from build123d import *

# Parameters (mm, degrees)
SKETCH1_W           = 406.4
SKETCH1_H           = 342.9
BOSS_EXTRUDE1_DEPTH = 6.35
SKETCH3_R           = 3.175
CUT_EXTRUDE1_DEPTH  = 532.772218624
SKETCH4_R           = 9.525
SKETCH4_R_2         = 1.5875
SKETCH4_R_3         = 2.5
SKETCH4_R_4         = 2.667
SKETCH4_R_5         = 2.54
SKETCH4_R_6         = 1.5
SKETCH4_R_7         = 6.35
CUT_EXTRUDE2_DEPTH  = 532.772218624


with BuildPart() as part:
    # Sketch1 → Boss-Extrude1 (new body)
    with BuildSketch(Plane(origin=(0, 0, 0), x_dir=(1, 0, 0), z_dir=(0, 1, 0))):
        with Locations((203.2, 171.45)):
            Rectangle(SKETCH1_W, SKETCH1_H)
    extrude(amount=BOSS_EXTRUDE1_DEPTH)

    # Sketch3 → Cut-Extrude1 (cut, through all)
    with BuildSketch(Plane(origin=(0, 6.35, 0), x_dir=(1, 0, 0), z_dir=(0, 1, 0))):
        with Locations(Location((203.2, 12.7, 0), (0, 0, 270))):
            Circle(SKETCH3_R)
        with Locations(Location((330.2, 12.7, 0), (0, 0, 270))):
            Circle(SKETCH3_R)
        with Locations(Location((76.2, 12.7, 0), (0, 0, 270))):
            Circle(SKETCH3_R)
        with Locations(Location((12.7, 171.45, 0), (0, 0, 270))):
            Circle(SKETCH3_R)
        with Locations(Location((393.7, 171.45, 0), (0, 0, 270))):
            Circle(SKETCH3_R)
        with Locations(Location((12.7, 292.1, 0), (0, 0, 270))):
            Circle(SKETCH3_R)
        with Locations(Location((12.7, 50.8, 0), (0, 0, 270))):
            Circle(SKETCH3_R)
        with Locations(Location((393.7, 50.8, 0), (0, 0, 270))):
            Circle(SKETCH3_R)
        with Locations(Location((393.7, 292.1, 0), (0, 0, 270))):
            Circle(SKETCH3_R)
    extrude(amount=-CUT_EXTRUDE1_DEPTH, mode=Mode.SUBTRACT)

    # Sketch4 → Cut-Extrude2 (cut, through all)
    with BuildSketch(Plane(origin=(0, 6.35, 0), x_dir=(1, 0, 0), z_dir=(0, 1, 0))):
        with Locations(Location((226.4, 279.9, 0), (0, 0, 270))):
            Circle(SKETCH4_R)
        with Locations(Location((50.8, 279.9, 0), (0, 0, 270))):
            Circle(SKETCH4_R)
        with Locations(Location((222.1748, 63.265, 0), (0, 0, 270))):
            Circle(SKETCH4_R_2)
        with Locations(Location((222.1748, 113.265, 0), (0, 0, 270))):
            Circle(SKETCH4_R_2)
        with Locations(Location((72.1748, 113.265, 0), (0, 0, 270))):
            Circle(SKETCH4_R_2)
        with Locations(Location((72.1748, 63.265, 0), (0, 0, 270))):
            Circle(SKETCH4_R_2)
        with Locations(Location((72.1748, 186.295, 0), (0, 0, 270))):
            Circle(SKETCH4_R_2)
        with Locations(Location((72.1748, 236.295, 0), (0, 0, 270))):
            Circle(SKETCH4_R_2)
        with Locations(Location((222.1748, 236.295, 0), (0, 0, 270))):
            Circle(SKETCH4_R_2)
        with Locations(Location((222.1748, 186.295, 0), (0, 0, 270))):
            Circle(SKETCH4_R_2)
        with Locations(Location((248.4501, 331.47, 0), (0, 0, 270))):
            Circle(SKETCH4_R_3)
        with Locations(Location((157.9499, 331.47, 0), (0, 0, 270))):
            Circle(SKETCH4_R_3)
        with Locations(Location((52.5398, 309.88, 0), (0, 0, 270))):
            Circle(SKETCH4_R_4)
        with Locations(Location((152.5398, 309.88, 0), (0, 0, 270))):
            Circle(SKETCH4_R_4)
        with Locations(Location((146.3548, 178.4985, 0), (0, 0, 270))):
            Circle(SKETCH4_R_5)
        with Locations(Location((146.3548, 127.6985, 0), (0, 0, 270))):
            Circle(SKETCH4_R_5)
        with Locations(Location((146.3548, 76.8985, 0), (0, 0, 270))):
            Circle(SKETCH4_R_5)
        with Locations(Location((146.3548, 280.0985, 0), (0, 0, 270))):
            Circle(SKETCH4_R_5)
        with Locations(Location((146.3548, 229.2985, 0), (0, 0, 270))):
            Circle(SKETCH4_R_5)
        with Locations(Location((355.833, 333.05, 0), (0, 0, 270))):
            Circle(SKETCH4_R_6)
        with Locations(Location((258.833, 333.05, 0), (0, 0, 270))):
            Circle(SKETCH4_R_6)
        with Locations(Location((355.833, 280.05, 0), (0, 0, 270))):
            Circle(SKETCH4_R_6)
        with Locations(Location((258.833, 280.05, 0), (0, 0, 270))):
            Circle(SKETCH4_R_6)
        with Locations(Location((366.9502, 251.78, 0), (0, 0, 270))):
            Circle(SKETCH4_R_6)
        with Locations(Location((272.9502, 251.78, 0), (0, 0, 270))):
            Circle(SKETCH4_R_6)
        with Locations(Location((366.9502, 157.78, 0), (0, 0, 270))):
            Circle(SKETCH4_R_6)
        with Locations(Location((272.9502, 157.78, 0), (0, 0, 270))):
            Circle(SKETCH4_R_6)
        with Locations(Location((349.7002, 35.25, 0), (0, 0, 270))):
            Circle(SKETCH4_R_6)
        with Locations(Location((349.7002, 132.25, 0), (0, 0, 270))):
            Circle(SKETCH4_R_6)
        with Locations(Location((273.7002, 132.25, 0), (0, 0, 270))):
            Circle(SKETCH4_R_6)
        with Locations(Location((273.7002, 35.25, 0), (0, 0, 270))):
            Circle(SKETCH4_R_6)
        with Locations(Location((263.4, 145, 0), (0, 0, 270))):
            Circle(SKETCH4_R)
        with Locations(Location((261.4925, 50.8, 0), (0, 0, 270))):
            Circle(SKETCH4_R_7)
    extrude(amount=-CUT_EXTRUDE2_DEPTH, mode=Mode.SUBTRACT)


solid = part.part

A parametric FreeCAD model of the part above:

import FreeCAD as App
import Part
import Sketcher
from FreeCAD import Vector
Q = App.Units.Quantity

doc = App.newDocument("Part")
body = doc.addObject("PartDesign::Body", "Body")

# Sketch on XZ plane
sketch1 = doc.addObject("Sketcher::SketchObject", "Sketch")
body.addObject(sketch1)
sketch1.AttachmentSupport = (doc.XZ_Plane, [""])
sketch1.MapMode = "FlatFace"
sketch1.addGeometry(Part.LineSegment(Vector(0, -343, 0), Vector(0, 0, 0)), False)
sketch1.addGeometry(Part.LineSegment(Vector(0, 0, 0), Vector(406, 0, 0)), False)
sketch1.addGeometry(Part.LineSegment(Vector(406, 0, 0), Vector(406, -343, 0)), False)
sketch1.addGeometry(Part.LineSegment(Vector(406, -343, 0), Vector(0, -343, 0)), False)
sketch1.addConstraint(Sketcher.Constraint("Coincident", 0, 2, 1, 1))
sketch1.addConstraint(Sketcher.Constraint("Coincident", 1, 2, 2, 1))
sketch1.addConstraint(Sketcher.Constraint("Coincident", 2, 2, 3, 1))
sketch1.addConstraint(Sketcher.Constraint("Coincident", 3, 2, 0, 1))
sketch1.addConstraint(Sketcher.Constraint("Vertical", 0))
sketch1.addConstraint(Sketcher.Constraint("Horizontal", 1))
sketch1.addConstraint(Sketcher.Constraint("Vertical", 2))
sketch1.addConstraint(Sketcher.Constraint("Horizontal", 3))
sketch1.addConstraint(Sketcher.Constraint("Coincident", 0, 2, -1, 1))
sketch1.addConstraint(Sketcher.Constraint("DistanceX", 1, 1, 1, 2, Q("16 in")))
sketch1.addConstraint(Sketcher.Constraint("DistanceY", 0, 1, 0, 2, Q("13.5 in")))
pad1 = doc.addObject("PartDesign::Pad", "Pad")
body.addObject(pad1)
pad1.Profile = sketch1
pad1.Length = Q("0.25 in")
pad1.Reversed = True

# Sketch on XZ plane
sketch2 = doc.addObject("Sketcher::SketchObject", "Sketch001")
body.addObject(sketch2)
sketch2.AttachmentSupport = (doc.XZ_Plane, [""])
sketch2.MapMode = "FlatFace"
sketch2.AttachmentOffset = App.Placement(Vector(0, 0, -0.25 * 25.4), App.Rotation())
sketch2.addGeometry(Part.Circle(Vector(203.2, -12.7, 0), Vector(0, 0, 1), 3.2), False)
sketch2.addGeometry(Part.Circle(Vector(330.2, -12.7, 0), Vector(0, 0, 1), 3.2), False)
sketch2.addGeometry(Part.Circle(Vector(76.2, -12.7, 0), Vector(0, 0, 1), 3.2), False)
sketch2.addGeometry(Part.Circle(Vector(12.7, -171.4, 0), Vector(0, 0, 1), 3.2), False)
sketch2.addGeometry(Part.Circle(Vector(393.7, -171.4, 0), Vector(0, 0, 1), 3.2), False)
sketch2.addGeometry(Part.Circle(Vector(12.7, -292.1, 0), Vector(0, 0, 1), 3.2), False)
sketch2.addGeometry(Part.Circle(Vector(12.7, -50.8, 0), Vector(0, 0, 1), 3.2), False)
sketch2.addGeometry(Part.Circle(Vector(393.7, -50.8, 0), Vector(0, 0, 1), 3.2), False)
sketch2.addGeometry(Part.Circle(Vector(393.7, -292.1, 0), Vector(0, 0, 1), 3.2), False)
sketch2.addConstraint(Sketcher.Constraint("Equal", 0, 1))
sketch2.addConstraint(Sketcher.Constraint("Equal", 1, 2))
sketch2.addConstraint(Sketcher.Constraint("Equal", 2, 3))
sketch2.addConstraint(Sketcher.Constraint("Equal", 3, 4))
sketch2.addConstraint(Sketcher.Constraint("Equal", 4, 5))
sketch2.addConstraint(Sketcher.Constraint("Equal", 5, 6))
sketch2.addConstraint(Sketcher.Constraint("Equal", 6, 7))
sketch2.addConstraint(Sketcher.Constraint("Equal", 7, 8))
sketch2.addConstraint(Sketcher.Constraint("Horizontal", 0, 3, 1, 3))
sketch2.addConstraint(Sketcher.Constraint("Horizontal", 1, 3, 2, 3))
sketch2.addConstraint(Sketcher.Constraint("Horizontal", 3, 3, 4, 3))
sketch2.addConstraint(Sketcher.Constraint("Horizontal", 6, 3, 7, 3))
sketch2.addConstraint(Sketcher.Constraint("Horizontal", 5, 3, 8, 3))
sketch2.addConstraint(Sketcher.Constraint("Vertical", 3, 3, 5, 3))
sketch2.addConstraint(Sketcher.Constraint("Vertical", 5, 3, 6, 3))
sketch2.addConstraint(Sketcher.Constraint("Vertical", 4, 3, 7, 3))
sketch2.addConstraint(Sketcher.Constraint("Vertical", 7, 3, 8, 3))
sketch2.addConstraint(Sketcher.Constraint("Diameter", 0, Q("0.25 in")))
sketch2.addConstraint(Sketcher.Constraint("DistanceX", -1, 1, 0, 3, Q("8 in")))
sketch2.addConstraint(Sketcher.Constraint("DistanceX", -1, 1, 1, 3, Q("13 in")))
sketch2.addConstraint(Sketcher.Constraint("DistanceX", -1, 1, 2, 3, Q("3 in")))
sketch2.addConstraint(Sketcher.Constraint("DistanceY", 6, 3, -1, 1, Q("2 in")))
sketch2.addConstraint(Sketcher.Constraint("DistanceX", 3, 3, 4, 3, Q("15 in")))
sketch2.addConstraint(Sketcher.Constraint("DistanceY", 5, 3, 2, 3, Q("11 in")))
sketch2.addConstraint(Sketcher.Constraint("DistanceY", 0, 3, -1, 1, Q("0.5 in")))
sketch2.addConstraint(Sketcher.Constraint("DistanceX", -1, 1, 3, 3, Q("0.5 in")))
sketch2.addConstraint(Sketcher.Constraint("DistanceY", 3, 3, -1, 1, Q("6.75 in")))
pocket1 = doc.addObject("PartDesign::Pocket", "Pocket")
body.addObject(pocket1)
pocket1.Profile = sketch2
pocket1.Type = "ThroughAll"
pocket1.Reversed = True

# Sketch on XZ plane
sketch3 = doc.addObject("Sketcher::SketchObject", "Sketch002")
body.addObject(sketch3)
sketch3.AttachmentSupport = (doc.XZ_Plane, [""])
sketch3.MapMode = "FlatFace"
sketch3.AttachmentOffset = App.Placement(Vector(0, 0, -0.25 * 25.4), App.Rotation())
sketch3.addGeometry(Part.Circle(Vector(226.4, -279.9, 0), Vector(0, 0, 1), 9.5), False)
sketch3.addGeometry(Part.Circle(Vector(50.8, -279.9, 0), Vector(0, 0, 1), 9.5), False)
sketch3.addGeometry(Part.Circle(Vector(222.2, -63.3, 0), Vector(0, 0, 1), 1.6), False)
sketch3.addGeometry(Part.Circle(Vector(222.2, -113.3, 0), Vector(0, 0, 1), 1.6), False)
sketch3.addGeometry(Part.Circle(Vector(72.2, -113.3, 0), Vector(0, 0, 1), 1.6), False)
sketch3.addGeometry(Part.Circle(Vector(72.2, -63.3, 0), Vector(0, 0, 1), 1.6), False)
sketch3.addGeometry(Part.Circle(Vector(72.2, -186.3, 0), Vector(0, 0, 1), 1.6), False)
sketch3.addGeometry(Part.Circle(Vector(72.2, -236.3, 0), Vector(0, 0, 1), 1.6), False)
sketch3.addGeometry(Part.Circle(Vector(222.2, -236.3, 0), Vector(0, 0, 1), 1.6), False)
sketch3.addGeometry(Part.Circle(Vector(222.2, -186.3, 0), Vector(0, 0, 1), 1.6), False)
sketch3.addGeometry(Part.Circle(Vector(248.5, -331.5, 0), Vector(0, 0, 1), 2.5), False)
sketch3.addGeometry(Part.Circle(Vector(157.9, -331.5, 0), Vector(0, 0, 1), 2.5), False)
sketch3.addGeometry(Part.Circle(Vector(52.5, -309.9, 0), Vector(0, 0, 1), 2.7), False)
sketch3.addGeometry(Part.Circle(Vector(152.5, -309.9, 0), Vector(0, 0, 1), 2.7), False)
sketch3.addGeometry(Part.Circle(Vector(146.4, -178.5, 0), Vector(0, 0, 1), 2.5), False)
sketch3.addGeometry(Part.Circle(Vector(146.4, -127.7, 0), Vector(0, 0, 1), 2.5), False)
sketch3.addGeometry(Part.Circle(Vector(146.4, -76.9, 0), Vector(0, 0, 1), 2.5), False)
sketch3.addGeometry(Part.Circle(Vector(146.4, -280.1, 0), Vector(0, 0, 1), 2.5), False)
sketch3.addGeometry(Part.Circle(Vector(146.4, -229.3, 0), Vector(0, 0, 1), 2.5), False)
sketch3.addGeometry(Part.Circle(Vector(355.8, -333.1, 0), Vector(0, 0, 1), 1.5), False)
sketch3.addGeometry(Part.Circle(Vector(258.8, -333.1, 0), Vector(0, 0, 1), 1.5), False)
sketch3.addGeometry(Part.Circle(Vector(355.8, -280.1, 0), Vector(0, 0, 1), 1.5), False)
sketch3.addGeometry(Part.Circle(Vector(258.8, -280.1, 0), Vector(0, 0, 1), 1.5), False)
sketch3.addGeometry(Part.Circle(Vector(367, -251.8, 0), Vector(0, 0, 1), 1.5), False)
sketch3.addGeometry(Part.Circle(Vector(273, -251.8, 0), Vector(0, 0, 1), 1.5), False)
sketch3.addGeometry(Part.Circle(Vector(367, -157.8, 0), Vector(0, 0, 1), 1.5), False)
sketch3.addGeometry(Part.Circle(Vector(273, -157.8, 0), Vector(0, 0, 1), 1.5), False)
sketch3.addGeometry(Part.Circle(Vector(349.7, -35.2, 0), Vector(0, 0, 1), 1.5), False)
sketch3.addGeometry(Part.Circle(Vector(349.7, -132.2, 0), Vector(0, 0, 1), 1.5), False)
sketch3.addGeometry(Part.Circle(Vector(273.7, -132.2, 0), Vector(0, 0, 1), 1.5), False)
sketch3.addGeometry(Part.Circle(Vector(273.7, -35.2, 0), Vector(0, 0, 1), 1.5), False)
sketch3.addGeometry(Part.Circle(Vector(263.4, -145, 0), Vector(0, 0, 1), 9.5), False)
sketch3.addGeometry(Part.Circle(Vector(261.5, -50.8, 0), Vector(0, 0, 1), 6.3), False)
sketch3.addConstraint(Sketcher.Constraint("Equal", 0, 1))
sketch3.addConstraint(Sketcher.Constraint("Equal", 2, 3))
sketch3.addConstraint(Sketcher.Constraint("Equal", 3, 4))
sketch3.addConstraint(Sketcher.Constraint("Equal", 4, 5))
sketch3.addConstraint(Sketcher.Constraint("Equal", 5, 6))
sketch3.addConstraint(Sketcher.Constraint("Equal", 6, 7))
sketch3.addConstraint(Sketcher.Constraint("Equal", 7, 8))
sketch3.addConstraint(Sketcher.Constraint("Equal", 8, 9))
sketch3.addConstraint(Sketcher.Constraint("Equal", 10, 11))
sketch3.addConstraint(Sketcher.Constraint("Equal", 12, 13))
sketch3.addConstraint(Sketcher.Constraint("Equal", 14, 15))
sketch3.addConstraint(Sketcher.Constraint("Equal", 15, 16))
sketch3.addConstraint(Sketcher.Constraint("Equal", 16, 17))
sketch3.addConstraint(Sketcher.Constraint("Equal", 17, 18))
sketch3.addConstraint(Sketcher.Constraint("Equal", 19, 20))
sketch3.addConstraint(Sketcher.Constraint("Equal", 20, 21))
sketch3.addConstraint(Sketcher.Constraint("Equal", 21, 22))
sketch3.addConstraint(Sketcher.Constraint("Equal", 22, 23))
sketch3.addConstraint(Sketcher.Constraint("Equal", 23, 24))
sketch3.addConstraint(Sketcher.Constraint("Equal", 24, 25))
sketch3.addConstraint(Sketcher.Constraint("Equal", 25, 26))
sketch3.addConstraint(Sketcher.Constraint("Equal", 26, 27))
sketch3.addConstraint(Sketcher.Constraint("Equal", 27, 28))
sketch3.addConstraint(Sketcher.Constraint("Equal", 28, 29))
sketch3.addConstraint(Sketcher.Constraint("Equal", 29, 30))
sketch3.addConstraint(Sketcher.Constraint("Equal", 1, 31))
sketch3.addConstraint(Sketcher.Constraint("Horizontal", 0, 3, 1, 3))
sketch3.addConstraint(Sketcher.Constraint("Horizontal", 3, 3, 4, 3))
sketch3.addConstraint(Sketcher.Constraint("Horizontal", 2, 3, 5, 3))
sketch3.addConstraint(Sketcher.Constraint("Horizontal", 7, 3, 8, 3))
sketch3.addConstraint(Sketcher.Constraint("Horizontal", 6, 3, 9, 3))
sketch3.addConstraint(Sketcher.Constraint("Horizontal", 10, 3, 11, 3))
sketch3.addConstraint(Sketcher.Constraint("Horizontal", 12, 3, 13, 3))
sketch3.addConstraint(Sketcher.Constraint("Horizontal", 19, 3, 20, 3))
sketch3.addConstraint(Sketcher.Constraint("Horizontal", 21, 3, 22, 3))
sketch3.addConstraint(Sketcher.Constraint("Horizontal", 23, 3, 24, 3))
sketch3.addConstraint(Sketcher.Constraint("Horizontal", 25, 3, 26, 3))
sketch3.addConstraint(Sketcher.Constraint("Horizontal", 28, 3, 29, 3))
sketch3.addConstraint(Sketcher.Constraint("Horizontal", 27, 3, 30, 3))
sketch3.addConstraint(Sketcher.Constraint("Vertical", 2, 3, 3, 3))
sketch3.addConstraint(Sketcher.Constraint("Vertical", 4, 3, 5, 3))
sketch3.addConstraint(Sketcher.Constraint("Vertical", 5, 3, 6, 3))
sketch3.addConstraint(Sketcher.Constraint("Vertical", 6, 3, 7, 3))
sketch3.addConstraint(Sketcher.Constraint("Vertical", 3, 3, 8, 3))
sketch3.addConstraint(Sketcher.Constraint("Vertical", 8, 3, 9, 3))
sketch3.addConstraint(Sketcher.Constraint("Vertical", 14, 3, 15, 3))
sketch3.addConstraint(Sketcher.Constraint("Vertical", 15, 3, 16, 3))
sketch3.addConstraint(Sketcher.Constraint("Vertical", 16, 3, 17, 3))
sketch3.addConstraint(Sketcher.Constraint("Vertical", 17, 3, 18, 3))
sketch3.addConstraint(Sketcher.Constraint("Vertical", 19, 3, 21, 3))
sketch3.addConstraint(Sketcher.Constraint("Vertical", 20, 3, 22, 3))
sketch3.addConstraint(Sketcher.Constraint("Vertical", 23, 3, 25, 3))
sketch3.addConstraint(Sketcher.Constraint("Vertical", 24, 3, 26, 3))
sketch3.addConstraint(Sketcher.Constraint("Vertical", 27, 3, 28, 3))
sketch3.addConstraint(Sketcher.Constraint("Vertical", 29, 3, 30, 3))
sketch3.addConstraint(Sketcher.Constraint("Diameter", 14, Q("0.2 in")))
sketch3.addConstraint(Sketcher.Constraint("Diameter", 32, Q("0.5 in")))
sketch3.addConstraint(Sketcher.Constraint("Diameter", 0, Q("0.75 in")))
sketch3.addConstraint(Sketcher.Constraint("Diameter", 12, Q("0.21 in")))
sketch3.addConstraint(Sketcher.Constraint("Diameter", 2, Q("0.125 in")))
sketch3.addConstraint(Sketcher.Constraint("DistanceX", -1, 1, 1, 3, Q("2 in")))
sketch3.addConstraint(Sketcher.Constraint("DistanceY", 32, 3, -1, 1, Q("2 in")))
sketch3.addConstraint(Sketcher.Constraint("DistanceY", 14, 3, 15, 3, Q("2 in")))
sketch3.addConstraint(Sketcher.Constraint("DistanceY", 15, 3, 16, 3, Q("2 in")))
sketch3.addConstraint(Sketcher.Constraint("DistanceY", 18, 3, 14, 3, Q("2 in")))
sketch3.addConstraint(Sketcher.Constraint("DistanceY", 17, 3, 18, 3, Q("2 in")))
sketch3.addConstraint(Sketcher.Constraint("DistanceY", 12, 3, -1, 1, Q("12.2 in")))
sketch3.addConstraint(Sketcher.Constraint("Diameter", 10, 5.0))
sketch3.addConstraint(Sketcher.Constraint("Diameter", 19, 3.0))
sketch3.addConstraint(Sketcher.Constraint("DistanceY", 10, 3, -1, 1, Q("13.05 in")))
sketch3.addConstraint(Sketcher.Constraint("DistanceX", -1, 1, 14, 3, Q("5.762 in")))
sketch3.addConstraint(Sketcher.Constraint("DistanceX", 11, 3, 10, 3, Q("3.563 in")))
sketch3.addConstraint(Sketcher.Constraint("DistanceX", -1, 1, 10, 3, Q("9.7815 in")))
sketch3.addConstraint(Sketcher.Constraint("DistanceY", 14, 3, -1, 1, Q("7.0275 in")))
sketch3.addConstraint(Sketcher.Constraint("DistanceX", -1, 1, 0, 3, 226.4))
sketch3.addConstraint(Sketcher.Constraint("DistanceY", 0, 3, -1, 1, 279.9))
sketch3.addConstraint(Sketcher.Constraint("DistanceX", -1, 1, 2, 3, 222.1748))
sketch3.addConstraint(Sketcher.Constraint("DistanceY", 2, 3, -1, 1, 63.265))
sketch3.addConstraint(Sketcher.Constraint("DistanceY", 3, 3, -1, 1, 113.265))
sketch3.addConstraint(Sketcher.Constraint("DistanceX", -1, 1, 4, 3, 72.1748))
sketch3.addConstraint(Sketcher.Constraint("DistanceY", 6, 3, -1, 1, 186.295))
sketch3.addConstraint(Sketcher.Constraint("DistanceY", 7, 3, -1, 1, 236.295))
sketch3.addConstraint(Sketcher.Constraint("DistanceX", -1, 1, 12, 3, 52.5398))
sketch3.addConstraint(Sketcher.Constraint("DistanceX", -1, 1, 13, 3, 152.5398))
sketch3.addConstraint(Sketcher.Constraint("DistanceX", -1, 1, 19, 3, 355.833))
sketch3.addConstraint(Sketcher.Constraint("DistanceY", 19, 3, -1, 1, 333.05))
sketch3.addConstraint(Sketcher.Constraint("DistanceX", -1, 1, 20, 3, 258.833))
sketch3.addConstraint(Sketcher.Constraint("DistanceY", 21, 3, -1, 1, 280.05))
sketch3.addConstraint(Sketcher.Constraint("DistanceX", -1, 1, 23, 3, 366.9502))
sketch3.addConstraint(Sketcher.Constraint("DistanceY", 23, 3, -1, 1, 251.78))
sketch3.addConstraint(Sketcher.Constraint("DistanceX", -1, 1, 24, 3, 272.9502))
sketch3.addConstraint(Sketcher.Constraint("DistanceY", 25, 3, -1, 1, 157.78))
sketch3.addConstraint(Sketcher.Constraint("DistanceX", -1, 1, 27, 3, 349.7002))
sketch3.addConstraint(Sketcher.Constraint("DistanceY", 27, 3, -1, 1, 35.25))
sketch3.addConstraint(Sketcher.Constraint("DistanceY", 28, 3, -1, 1, 132.25))
sketch3.addConstraint(Sketcher.Constraint("DistanceX", -1, 1, 29, 3, 273.7002))
sketch3.addConstraint(Sketcher.Constraint("DistanceX", -1, 1, 31, 3, 263.4))
sketch3.addConstraint(Sketcher.Constraint("DistanceY", 31, 3, -1, 1, 145.0))
sketch3.addConstraint(Sketcher.Constraint("DistanceX", -1, 1, 32, 3, 261.4925))
pocket2 = doc.addObject("PartDesign::Pocket", "Pocket001")
body.addObject(pocket2)
pocket2.Profile = sketch3
pocket2.Type = "ThroughAll"
pocket2.Reversed = True

doc.recompute()
